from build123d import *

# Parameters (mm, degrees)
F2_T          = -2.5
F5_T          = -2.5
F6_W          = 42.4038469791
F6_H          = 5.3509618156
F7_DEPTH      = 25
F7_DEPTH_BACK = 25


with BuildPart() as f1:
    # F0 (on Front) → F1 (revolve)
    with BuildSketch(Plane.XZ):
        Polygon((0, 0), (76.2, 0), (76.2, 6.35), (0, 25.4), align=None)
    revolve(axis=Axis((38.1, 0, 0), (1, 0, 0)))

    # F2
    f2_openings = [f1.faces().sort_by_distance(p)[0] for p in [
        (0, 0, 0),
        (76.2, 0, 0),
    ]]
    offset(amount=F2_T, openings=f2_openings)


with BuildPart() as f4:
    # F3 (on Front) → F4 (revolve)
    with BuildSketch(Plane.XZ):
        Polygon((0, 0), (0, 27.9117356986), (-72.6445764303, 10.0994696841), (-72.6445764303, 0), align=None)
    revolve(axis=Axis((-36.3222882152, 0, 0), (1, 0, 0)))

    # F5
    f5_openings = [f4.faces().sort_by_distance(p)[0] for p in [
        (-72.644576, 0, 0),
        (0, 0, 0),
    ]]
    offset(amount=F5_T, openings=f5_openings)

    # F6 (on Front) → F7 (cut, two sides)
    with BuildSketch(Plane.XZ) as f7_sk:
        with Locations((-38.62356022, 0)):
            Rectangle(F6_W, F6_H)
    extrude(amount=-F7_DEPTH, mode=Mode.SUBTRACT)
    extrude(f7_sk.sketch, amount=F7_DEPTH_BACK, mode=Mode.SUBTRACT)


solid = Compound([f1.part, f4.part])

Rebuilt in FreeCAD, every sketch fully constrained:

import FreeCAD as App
import Part
import Sketcher
from FreeCAD import Vector
Q = App.Units.Quantity


def faces_at(feature, points):
    """Names of the faces that lie closest to the given points."""
    faces = feature.Shape.Faces
    near = lambda p: min(range(len(faces)), key=lambda i: faces[i].distToShape(Part.Vertex(*p))[0])
    return sorted({f"Face{near(p) + 1}" for p in points})


def add_polygon(sketch, points):
    """Adds a closed chain of lines whose ends are joined by coincident constraints."""
    first, n = sketch.GeometryCount, len(points)
    for a, b in zip(points, points[1:] + points[:1]):
        sketch.addGeometry(Part.LineSegment(App.Vector(*a, 0), App.Vector(*b, 0)), False)
    for i in range(n):
        sketch.addConstraint(Sketcher.Constraint("Coincident", first + i, 2, first + (i + 1) % n, 1))

doc = App.newDocument("Part")
body = doc.addObject("PartDesign::Body", "Body")

sketch1 = body.newObject("Sketcher::SketchObject", "Sketch")
sketch1.AttachmentSupport = (doc.getObject("XZ_Plane"), [""])
sketch1.MapMode = "FlatFace"
add_polygon(sketch1, [(0, 0), (76.2, 0), (76.2, 6.35), (0, 25.4)])
sketch1.addConstraint([
    Sketcher.Constraint("Horizontal", 0),
    Sketcher.Constraint("Vertical", 1),
    Sketcher.Constraint("Vertical", 3),
    Sketcher.Constraint("Coincident", 3, 2, -1, 1),
    Sketcher.Constraint("DistanceX", 0, 1, 0, 2, Q("3 in")),
    Sketcher.Constraint("DistanceY", 3, 2, 3, 1, Q("1 in")),
    Sketcher.Constraint("DistanceY", 1, 1, 1, 2, Q("0.25 in")),
])
revolution = body.newObject("PartDesign::Revolution", "Revolution")
revolution.Profile = sketch1
revolution.ReferenceAxis = (sketch1, ["H_Axis"])
revolution.Angle = 360
doc.recompute()

thickness = body.newObject("PartDesign::Thickness", "Thickness")
thickness.Base = (revolution, faces_at(revolution, [(0, 0, 0), (76.2, 0, 0)]))
thickness.Value = 2.5
thickness.Reversed = True
thickness.Join = "Arc"
body2 = doc.addObject("PartDesign::Body", "Body001")

sketch2 = body2.newObject("Sketcher::SketchObject", "Sketch001")
sketch2.AttachmentSupport = (doc.getObject("XZ_Plane001"), [""])
sketch2.MapMode = "FlatFace"
add_polygon(sketch2, [(0, 0), (0, 27.911736), (-72.644576, 10.09947), (-72.644576, 0)])
sketch2.addConstraint([
    Sketcher.Constraint("Vertical", 0),
    Sketcher.Constraint("Vertical", 2),
    Sketcher.Constraint("Horizontal", 3),
    Sketcher.Constraint("Coincident", 3, 2, -1, 1),
    Sketcher.Constraint("DistanceY", 2, 2, 2, 1, 10.09947),
    Sketcher.Constraint("DistanceX", 3, 1, 3, 2, 72.644576),
    Sketcher.Constraint("DistanceY", 0, 1, 0, 2, 27.911736),
])
revolution2 = body2.newObject("PartDesign::Revolution", "Revolution001")
revolution2.Profile = sketch2
revolution2.ReferenceAxis = (sketch2, ["H_Axis"])
revolution2.Angle = 360
doc.recompute()

thickness2 = body2.newObject("PartDesign::Thickness", "Thickness001")
thickness2.Base = (revolution2, faces_at(revolution2, [(-72.645, 0, 0), (0, 0, 0)]))
thickness2.Value = 2.5
thickness2.Reversed = True
thickness2.Join = "Arc"

sketch3 = body2.newObject("Sketcher::SketchObject", "Sketch002")
sketch3.AttachmentSupport = (doc.getObject("XZ_Plane001"), [""])
sketch3.MapMode = "FlatFace"
add_polygon(sketch3, [(-59.825484, 2.675481), (-59.825484, -2.675481), (-17.421637, -2.675481), (-17.421637, 2.675481)])
sketch3.addConstraint([
    Sketcher.Constraint("Vertical", 0),
    Sketcher.Constraint("Horizontal", 1),
    Sketcher.Constraint("Vertical", 2),
    Sketcher.Constraint("Horizontal", 3),
    Sketcher.Constraint("DistanceY", 0, 2, 0, 1, 5.350962),
    Sketcher.Constraint("DistanceX", 1, 1, 1, 2, 42.403847),
    Sketcher.Constraint("DistanceY", 0, 2, -1, 1, 2.675481),
    Sketcher.Constraint("DistanceX", 0, 2, -1, 1, 59.825484),
])
pocket1 = body2.newObject("PartDesign::Pocket", "Pocket")
pocket1.Profile = sketch3
pocket1.Type = "ThroughAll"
pocket1.Midplane = True

doc.recompute()
